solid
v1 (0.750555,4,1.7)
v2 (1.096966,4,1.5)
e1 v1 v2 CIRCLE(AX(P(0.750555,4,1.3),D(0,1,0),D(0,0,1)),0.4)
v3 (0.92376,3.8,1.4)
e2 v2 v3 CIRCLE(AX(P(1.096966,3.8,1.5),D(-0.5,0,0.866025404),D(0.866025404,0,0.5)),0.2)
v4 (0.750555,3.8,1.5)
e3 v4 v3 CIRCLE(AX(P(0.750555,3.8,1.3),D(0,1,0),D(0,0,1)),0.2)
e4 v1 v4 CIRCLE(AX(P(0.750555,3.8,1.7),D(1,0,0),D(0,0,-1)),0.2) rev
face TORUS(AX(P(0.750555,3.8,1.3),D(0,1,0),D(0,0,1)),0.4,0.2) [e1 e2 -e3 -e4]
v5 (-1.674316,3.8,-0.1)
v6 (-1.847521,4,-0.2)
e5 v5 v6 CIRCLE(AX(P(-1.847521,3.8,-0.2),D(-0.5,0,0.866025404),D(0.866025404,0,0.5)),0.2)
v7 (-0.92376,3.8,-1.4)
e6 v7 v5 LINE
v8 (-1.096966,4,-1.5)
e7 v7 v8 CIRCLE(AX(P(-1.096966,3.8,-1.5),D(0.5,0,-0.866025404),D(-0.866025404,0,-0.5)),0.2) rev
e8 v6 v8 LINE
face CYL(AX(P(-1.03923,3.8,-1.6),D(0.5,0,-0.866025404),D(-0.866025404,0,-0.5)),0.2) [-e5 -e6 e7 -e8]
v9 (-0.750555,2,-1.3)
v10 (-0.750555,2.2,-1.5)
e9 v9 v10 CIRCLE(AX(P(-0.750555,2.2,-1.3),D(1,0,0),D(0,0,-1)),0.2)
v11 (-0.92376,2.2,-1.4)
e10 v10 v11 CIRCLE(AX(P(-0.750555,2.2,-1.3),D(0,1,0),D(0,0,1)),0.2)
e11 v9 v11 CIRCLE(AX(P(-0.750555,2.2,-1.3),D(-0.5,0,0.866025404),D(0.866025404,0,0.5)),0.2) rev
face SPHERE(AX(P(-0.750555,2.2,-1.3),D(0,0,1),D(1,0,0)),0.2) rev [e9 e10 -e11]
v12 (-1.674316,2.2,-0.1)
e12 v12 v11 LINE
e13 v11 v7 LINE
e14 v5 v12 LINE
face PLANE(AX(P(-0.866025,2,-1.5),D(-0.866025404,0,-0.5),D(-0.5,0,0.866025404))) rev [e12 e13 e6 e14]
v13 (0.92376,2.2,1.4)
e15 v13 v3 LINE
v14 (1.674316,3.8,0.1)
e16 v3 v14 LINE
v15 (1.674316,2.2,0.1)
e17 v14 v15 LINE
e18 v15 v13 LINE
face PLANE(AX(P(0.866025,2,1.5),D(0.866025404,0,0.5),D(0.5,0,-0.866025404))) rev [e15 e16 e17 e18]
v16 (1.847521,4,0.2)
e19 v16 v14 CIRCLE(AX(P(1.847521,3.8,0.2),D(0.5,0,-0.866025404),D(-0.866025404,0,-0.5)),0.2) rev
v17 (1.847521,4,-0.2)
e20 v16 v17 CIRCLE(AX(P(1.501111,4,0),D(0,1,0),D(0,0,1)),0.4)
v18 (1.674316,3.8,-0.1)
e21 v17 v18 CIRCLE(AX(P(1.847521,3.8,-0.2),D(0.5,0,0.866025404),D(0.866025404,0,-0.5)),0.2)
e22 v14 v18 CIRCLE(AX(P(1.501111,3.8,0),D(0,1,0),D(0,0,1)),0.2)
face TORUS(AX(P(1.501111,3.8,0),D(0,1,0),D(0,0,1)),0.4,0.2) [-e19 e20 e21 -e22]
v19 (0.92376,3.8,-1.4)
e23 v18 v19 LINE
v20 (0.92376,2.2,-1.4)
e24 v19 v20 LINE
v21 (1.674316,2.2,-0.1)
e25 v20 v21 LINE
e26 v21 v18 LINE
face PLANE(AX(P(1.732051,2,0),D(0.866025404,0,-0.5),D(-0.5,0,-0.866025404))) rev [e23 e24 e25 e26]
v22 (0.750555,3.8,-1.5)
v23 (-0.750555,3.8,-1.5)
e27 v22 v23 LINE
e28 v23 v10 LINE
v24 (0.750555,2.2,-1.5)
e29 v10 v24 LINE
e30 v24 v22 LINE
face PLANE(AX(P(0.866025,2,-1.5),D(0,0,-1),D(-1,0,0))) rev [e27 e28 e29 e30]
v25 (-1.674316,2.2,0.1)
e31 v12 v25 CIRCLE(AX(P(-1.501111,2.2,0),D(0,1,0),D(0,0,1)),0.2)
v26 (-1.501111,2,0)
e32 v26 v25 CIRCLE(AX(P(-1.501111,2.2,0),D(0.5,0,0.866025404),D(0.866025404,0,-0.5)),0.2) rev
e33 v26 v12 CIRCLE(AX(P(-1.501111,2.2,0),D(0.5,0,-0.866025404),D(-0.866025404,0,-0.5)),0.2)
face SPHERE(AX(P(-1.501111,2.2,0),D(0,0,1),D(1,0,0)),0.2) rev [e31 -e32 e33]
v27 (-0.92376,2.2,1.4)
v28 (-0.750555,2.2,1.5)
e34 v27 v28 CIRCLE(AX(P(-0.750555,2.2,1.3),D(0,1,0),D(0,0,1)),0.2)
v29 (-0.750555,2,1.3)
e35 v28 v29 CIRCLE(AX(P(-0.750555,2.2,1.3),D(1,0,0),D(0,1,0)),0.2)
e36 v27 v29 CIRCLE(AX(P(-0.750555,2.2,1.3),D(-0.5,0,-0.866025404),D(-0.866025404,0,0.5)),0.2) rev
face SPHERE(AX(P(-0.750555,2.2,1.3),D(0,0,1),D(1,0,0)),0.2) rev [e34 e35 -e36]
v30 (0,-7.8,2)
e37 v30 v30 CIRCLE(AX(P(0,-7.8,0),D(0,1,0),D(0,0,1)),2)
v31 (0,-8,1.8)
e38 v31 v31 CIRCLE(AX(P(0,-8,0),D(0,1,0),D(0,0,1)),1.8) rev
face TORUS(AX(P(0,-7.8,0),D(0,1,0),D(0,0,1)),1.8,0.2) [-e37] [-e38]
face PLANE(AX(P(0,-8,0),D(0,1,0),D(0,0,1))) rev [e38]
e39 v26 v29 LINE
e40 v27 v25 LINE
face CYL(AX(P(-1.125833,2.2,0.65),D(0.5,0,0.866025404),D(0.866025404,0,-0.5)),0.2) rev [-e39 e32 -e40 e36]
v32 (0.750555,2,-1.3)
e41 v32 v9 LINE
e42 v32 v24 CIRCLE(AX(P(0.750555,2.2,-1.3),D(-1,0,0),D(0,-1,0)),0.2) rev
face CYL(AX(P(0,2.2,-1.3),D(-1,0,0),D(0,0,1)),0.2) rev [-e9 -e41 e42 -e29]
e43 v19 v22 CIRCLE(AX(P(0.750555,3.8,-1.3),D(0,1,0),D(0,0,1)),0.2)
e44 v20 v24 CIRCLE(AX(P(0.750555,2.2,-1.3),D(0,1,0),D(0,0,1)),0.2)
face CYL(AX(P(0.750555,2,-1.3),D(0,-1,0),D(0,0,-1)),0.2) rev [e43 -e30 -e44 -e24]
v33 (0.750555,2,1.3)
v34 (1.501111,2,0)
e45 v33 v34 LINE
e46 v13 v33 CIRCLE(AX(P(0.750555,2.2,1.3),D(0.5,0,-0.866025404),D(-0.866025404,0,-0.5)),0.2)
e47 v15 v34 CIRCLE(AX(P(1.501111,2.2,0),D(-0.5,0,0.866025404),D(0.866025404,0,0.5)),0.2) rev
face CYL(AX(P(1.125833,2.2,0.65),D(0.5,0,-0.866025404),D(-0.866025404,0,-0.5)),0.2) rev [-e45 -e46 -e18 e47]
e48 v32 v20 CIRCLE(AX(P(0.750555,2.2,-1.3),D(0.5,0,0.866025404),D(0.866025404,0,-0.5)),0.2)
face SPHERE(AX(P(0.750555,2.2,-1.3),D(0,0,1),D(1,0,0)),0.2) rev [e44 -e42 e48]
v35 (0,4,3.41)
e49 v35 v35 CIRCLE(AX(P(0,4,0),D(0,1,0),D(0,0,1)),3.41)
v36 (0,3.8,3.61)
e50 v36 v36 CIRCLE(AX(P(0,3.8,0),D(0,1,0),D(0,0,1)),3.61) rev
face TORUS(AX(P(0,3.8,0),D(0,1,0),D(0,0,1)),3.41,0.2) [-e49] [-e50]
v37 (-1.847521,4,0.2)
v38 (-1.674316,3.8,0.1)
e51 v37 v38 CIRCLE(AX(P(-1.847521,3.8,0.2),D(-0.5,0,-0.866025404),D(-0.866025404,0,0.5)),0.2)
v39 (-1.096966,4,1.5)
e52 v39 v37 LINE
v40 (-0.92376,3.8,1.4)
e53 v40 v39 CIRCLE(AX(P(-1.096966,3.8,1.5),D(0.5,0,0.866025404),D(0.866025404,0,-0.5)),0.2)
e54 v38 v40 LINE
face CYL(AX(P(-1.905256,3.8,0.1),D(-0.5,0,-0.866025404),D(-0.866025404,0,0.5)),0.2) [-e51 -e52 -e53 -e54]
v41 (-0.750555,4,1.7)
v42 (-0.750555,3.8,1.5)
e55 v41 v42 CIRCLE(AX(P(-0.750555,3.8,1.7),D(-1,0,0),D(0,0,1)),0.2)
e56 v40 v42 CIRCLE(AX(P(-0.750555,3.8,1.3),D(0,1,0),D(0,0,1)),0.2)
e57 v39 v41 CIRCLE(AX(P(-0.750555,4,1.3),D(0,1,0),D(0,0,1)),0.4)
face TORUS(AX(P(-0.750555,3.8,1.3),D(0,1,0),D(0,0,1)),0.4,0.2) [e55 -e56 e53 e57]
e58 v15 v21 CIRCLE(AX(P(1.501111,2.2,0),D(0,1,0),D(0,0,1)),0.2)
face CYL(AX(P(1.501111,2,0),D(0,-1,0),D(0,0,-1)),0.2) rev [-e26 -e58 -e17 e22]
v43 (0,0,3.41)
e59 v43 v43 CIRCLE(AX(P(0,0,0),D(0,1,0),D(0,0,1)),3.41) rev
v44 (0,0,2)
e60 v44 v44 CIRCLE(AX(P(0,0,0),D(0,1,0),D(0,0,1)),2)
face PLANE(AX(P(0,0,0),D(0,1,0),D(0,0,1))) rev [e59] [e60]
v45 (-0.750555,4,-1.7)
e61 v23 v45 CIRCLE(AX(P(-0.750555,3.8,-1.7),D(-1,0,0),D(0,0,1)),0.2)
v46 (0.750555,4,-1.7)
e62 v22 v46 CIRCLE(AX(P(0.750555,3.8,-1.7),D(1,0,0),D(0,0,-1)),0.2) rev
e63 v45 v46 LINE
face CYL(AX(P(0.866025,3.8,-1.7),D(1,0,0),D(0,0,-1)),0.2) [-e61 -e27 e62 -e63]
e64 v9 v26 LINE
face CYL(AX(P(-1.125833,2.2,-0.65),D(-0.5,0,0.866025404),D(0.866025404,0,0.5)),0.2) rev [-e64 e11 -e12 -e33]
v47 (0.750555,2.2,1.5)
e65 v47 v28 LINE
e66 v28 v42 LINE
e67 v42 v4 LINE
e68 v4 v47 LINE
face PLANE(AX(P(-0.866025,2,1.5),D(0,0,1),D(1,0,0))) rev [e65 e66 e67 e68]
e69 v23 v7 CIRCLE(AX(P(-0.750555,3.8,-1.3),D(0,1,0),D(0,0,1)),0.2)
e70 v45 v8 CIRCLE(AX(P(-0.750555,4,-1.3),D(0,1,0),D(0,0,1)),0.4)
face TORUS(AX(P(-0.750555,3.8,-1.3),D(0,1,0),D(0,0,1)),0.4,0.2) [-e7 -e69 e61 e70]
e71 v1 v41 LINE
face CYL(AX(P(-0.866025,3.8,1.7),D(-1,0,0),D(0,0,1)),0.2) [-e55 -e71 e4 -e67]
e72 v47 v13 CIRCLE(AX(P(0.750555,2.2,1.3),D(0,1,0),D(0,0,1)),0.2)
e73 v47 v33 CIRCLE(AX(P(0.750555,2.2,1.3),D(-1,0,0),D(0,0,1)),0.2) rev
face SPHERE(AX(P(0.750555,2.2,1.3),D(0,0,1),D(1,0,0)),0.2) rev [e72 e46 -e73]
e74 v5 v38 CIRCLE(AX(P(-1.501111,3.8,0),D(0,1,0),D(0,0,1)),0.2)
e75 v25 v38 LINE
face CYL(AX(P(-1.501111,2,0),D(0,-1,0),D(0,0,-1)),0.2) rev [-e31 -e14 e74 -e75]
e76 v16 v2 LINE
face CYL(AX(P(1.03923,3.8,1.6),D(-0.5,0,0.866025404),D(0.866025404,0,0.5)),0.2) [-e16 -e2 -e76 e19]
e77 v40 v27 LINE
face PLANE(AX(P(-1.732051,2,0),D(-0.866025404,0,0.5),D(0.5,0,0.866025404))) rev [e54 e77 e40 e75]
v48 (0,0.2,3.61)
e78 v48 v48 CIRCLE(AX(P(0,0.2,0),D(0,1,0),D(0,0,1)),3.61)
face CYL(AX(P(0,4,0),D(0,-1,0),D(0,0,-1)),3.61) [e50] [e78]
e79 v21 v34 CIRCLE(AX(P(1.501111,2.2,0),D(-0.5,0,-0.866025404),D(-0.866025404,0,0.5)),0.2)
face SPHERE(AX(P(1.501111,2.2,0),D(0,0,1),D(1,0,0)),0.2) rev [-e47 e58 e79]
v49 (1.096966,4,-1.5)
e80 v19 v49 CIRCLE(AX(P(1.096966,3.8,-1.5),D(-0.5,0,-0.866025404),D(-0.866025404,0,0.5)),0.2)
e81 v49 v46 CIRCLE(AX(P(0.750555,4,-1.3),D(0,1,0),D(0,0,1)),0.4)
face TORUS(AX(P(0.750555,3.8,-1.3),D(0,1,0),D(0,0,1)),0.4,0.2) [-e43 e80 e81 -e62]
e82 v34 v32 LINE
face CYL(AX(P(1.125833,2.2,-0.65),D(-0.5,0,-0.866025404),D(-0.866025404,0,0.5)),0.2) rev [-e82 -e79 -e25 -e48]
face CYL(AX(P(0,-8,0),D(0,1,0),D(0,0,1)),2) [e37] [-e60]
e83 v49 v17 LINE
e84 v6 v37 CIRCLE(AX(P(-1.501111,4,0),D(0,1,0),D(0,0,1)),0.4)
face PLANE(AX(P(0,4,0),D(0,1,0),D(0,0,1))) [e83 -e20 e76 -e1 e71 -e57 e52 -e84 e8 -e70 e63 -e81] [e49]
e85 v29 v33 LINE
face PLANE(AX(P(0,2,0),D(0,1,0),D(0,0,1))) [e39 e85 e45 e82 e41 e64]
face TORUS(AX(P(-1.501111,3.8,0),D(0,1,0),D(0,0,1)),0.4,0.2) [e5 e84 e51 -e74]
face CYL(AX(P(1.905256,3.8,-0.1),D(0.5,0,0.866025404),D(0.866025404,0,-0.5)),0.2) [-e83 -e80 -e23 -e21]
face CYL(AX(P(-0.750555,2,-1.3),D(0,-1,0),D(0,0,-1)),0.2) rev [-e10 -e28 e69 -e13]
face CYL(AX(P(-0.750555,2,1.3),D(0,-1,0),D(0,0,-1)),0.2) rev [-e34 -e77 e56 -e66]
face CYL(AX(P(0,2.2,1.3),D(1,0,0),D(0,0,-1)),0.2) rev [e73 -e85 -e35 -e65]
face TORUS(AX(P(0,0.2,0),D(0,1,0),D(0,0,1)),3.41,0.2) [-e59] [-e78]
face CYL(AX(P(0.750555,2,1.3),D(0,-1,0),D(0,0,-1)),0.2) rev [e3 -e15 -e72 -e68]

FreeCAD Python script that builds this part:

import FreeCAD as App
import Part
import Sketcher

V = App.Vector
Q = App.Units.Quantity


def edges_at(feature, points):
    """Names of the edges that pass closest to the given points."""
    edges = feature.Shape.Edges
    near = lambda p: min(range(len(edges)), key=lambda i: edges[i].distToShape(Part.Vertex(*p))[0])
    return sorted({f"Edge{near(p) + 1}" for p in points})

doc = App.newDocument("Part")
body = doc.addObject("PartDesign::Body", "Body")

sketch1 = body.newObject("Sketcher::SketchObject", "Sketch")
sketch1.AttachmentSupport = (doc.getObject("XZ_Plane"), [""])
sketch1.MapMode = "FlatFace"
sketch1.addGeometry(Part.Circle(V(0, 0, 0), V(0, 0, 1), 2), False)
sketch1.addConstraint([
    Sketcher.Constraint("Coincident", 0, 3, -1, 1),
    Sketcher.Constraint("Diameter", 0, 4.0),
])
pad1 = body.newObject("PartDesign::Pad", "Pad")
pad1.Profile = sketch1
pad1.Length = 8

sketch2 = body.newObject("Sketcher::SketchObject", "Sketch001")
sketch2.AttachmentSupport = (doc.getObject("XZ_Plane"), [""])
sketch2.MapMode = "FlatFace"
sketch2.addGeometry(Part.Circle(V(0, 0, 0), V(0, 0, 1), 3.61), False)
sketch2.addConstraint([
    Sketcher.Constraint("Coincident", 0, 3, -1, 1),
    Sketcher.Constraint("Diameter", 0, 7.22),
])
pad2 = body.newObject("PartDesign::Pad", "Pad001")
pad2.Profile = sketch2
pad2.Length = 4
pad2.Reversed = True

sketch3 = body.newObject("Sketcher::SketchObject", "Sketch002")
sketch3.AttachmentSupport = (doc.getObject("XZ_Plane"), [""])
sketch3.MapMode = "FlatFace"
sketch3.AttachmentOffset = App.Placement(V(0, 0, -4), App.Rotation())
sketch3.addGeometry([
    Part.LineSegment(V(1.732051, 0, 0), V(0.866025, -1.5, 0)),
    Part.LineSegment(V(0.866025, -1.5, 0), V(-0.866025, -1.5, 0)),
    Part.LineSegment(V(-0.866025, -1.5, 0), V(-1.732051, 0, 0)),
    Part.LineSegment(V(-1.732051, 0, 0), V(-0.866025, 1.5, 0)),
    Part.LineSegment(V(-0.866025, 1.5, 0), V(0.866025, 1.5, 0)),
    Part.LineSegment(V(0.866025, 1.5, 0), V(1.732051, 0, 0)),
], False)
sketch3.addConstraint([
    Sketcher.Constraint("Coincident", 0, 2, 1, 1),
    Sketcher.Constraint("Coincident", 1, 2, 2, 1),
    Sketcher.Constraint("Coincident", 2, 2, 3, 1),
    Sketcher.Constraint("Coincident", 3, 2, 4, 1),
    Sketcher.Constraint("Coincident", 4, 2, 5, 1),
    Sketcher.Constraint("Coincident", 5, 2, 0, 1),
    Sketcher.Constraint("Horizontal", 1),
    Sketcher.Constraint("Horizontal", 4),
    Sketcher.Constraint("Symmetric", 0, 2, 3, 2, -1, 1),
    Sketcher.Constraint("Symmetric", 2, 2, 5, 2, -1, 1),
    Sketcher.Constraint("PointOnObject", 2, 2, -1),
    Sketcher.Constraint("Parallel", 2, 5),
    Sketcher.Constraint("Vertical", 1, 2, 3, 2),
    Sketcher.Constraint("Angle", 0, Q("-120 deg")),
    Sketcher.Constraint("DistanceY", 1, 2, 3, 2, 3.0),
    Sketcher.Constraint("DistanceX", 1, 2, 1, 1, 1.732051),
])
pocket1 = body.newObject("PartDesign::Pocket", "Pocket")
pocket1.Profile = sketch3
pocket1.Length = 2
pocket1.Reversed = True
doc.recompute()

fillet = body.newObject("PartDesign::Fillet", "Fillet")
fillet.Base = (pocket1, edges_at(pocket1, [
    (1.299, 2, 0.75),
    (1.732, 3, 0),
    (0, 2, 1.5),
    (0.866, 3, 1.5),
    (-1.299, 2, 0.75),
    (-0.866, 3, 1.5),
    (-1.299, 2, -0.75),
    (-1.732, 3, 0),
    (0, 2, -1.5),
    (-0.866, 3, -1.5),
    (1.299, 2, -0.75),
    (0.866, 3, -1.5),
    (1.299, 4, 0.75),
    (1.299, 4, -0.75),
    (0, 4, -1.5),
    (-1.299, 4, -0.75),
    (-1.299, 4, 0.75),
    (0, 4, 1.5),
    (0, -8, -2),
    (0, 0, -3.61),
    (0, 4, -3.61),
]))
fillet.Radius = 0.2

doc.recompute()
